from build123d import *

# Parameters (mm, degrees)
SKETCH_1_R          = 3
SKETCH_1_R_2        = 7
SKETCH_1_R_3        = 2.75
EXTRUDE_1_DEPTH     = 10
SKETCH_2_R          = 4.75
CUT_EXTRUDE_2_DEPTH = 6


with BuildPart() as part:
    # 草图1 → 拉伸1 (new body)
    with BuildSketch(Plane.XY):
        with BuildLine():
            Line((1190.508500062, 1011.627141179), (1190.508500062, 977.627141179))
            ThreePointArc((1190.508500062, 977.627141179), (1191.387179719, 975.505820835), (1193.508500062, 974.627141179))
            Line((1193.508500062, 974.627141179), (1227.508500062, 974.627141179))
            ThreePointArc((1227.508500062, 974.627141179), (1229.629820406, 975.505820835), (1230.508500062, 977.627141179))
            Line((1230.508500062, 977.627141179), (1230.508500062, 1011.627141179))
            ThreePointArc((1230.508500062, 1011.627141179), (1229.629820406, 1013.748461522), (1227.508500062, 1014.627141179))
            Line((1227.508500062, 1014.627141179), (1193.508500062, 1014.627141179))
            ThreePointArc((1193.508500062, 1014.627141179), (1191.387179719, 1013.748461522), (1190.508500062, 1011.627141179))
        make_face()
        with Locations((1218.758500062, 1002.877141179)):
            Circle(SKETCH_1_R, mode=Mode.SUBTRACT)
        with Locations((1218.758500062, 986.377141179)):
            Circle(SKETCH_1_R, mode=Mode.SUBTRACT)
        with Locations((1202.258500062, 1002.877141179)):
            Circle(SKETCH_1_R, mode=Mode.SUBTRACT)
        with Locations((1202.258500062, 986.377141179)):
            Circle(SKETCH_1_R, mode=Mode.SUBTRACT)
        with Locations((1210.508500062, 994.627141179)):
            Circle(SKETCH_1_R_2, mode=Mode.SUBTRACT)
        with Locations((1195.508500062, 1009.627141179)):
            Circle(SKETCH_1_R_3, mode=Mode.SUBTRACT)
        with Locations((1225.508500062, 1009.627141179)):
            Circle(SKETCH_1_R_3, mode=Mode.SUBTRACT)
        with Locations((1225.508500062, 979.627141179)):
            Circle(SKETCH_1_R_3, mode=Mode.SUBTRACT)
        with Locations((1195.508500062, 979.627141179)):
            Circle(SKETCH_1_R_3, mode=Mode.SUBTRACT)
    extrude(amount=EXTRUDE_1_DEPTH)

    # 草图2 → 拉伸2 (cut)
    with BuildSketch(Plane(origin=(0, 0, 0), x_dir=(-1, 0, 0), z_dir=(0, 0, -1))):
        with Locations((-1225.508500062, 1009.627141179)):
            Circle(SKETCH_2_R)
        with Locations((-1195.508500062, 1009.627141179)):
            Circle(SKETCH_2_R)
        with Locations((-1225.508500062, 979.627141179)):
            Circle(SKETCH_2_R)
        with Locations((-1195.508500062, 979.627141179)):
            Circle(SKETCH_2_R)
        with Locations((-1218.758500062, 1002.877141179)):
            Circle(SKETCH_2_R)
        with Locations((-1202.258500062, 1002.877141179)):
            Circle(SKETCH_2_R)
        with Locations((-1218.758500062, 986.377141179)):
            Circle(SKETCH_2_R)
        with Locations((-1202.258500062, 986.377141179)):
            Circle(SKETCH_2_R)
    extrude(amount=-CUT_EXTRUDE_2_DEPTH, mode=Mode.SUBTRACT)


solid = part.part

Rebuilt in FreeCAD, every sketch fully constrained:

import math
import FreeCAD as App
import Part
import Sketcher
Q = App.Units.Quantity

doc = App.newDocument("Part")
params = doc.addObject("Spreadsheet::Sheet", "Params")
for row, (alias, value) in enumerate([
    ("sketch1_diameter", "6 mm"),
    ("sketch1_diameter2", "14 mm"),
    ("sketch1_diameter3", "5.5 mm"),
    ("sketch1_width", "34 mm"),
    ("pad1_length", "10 mm"),
    ("sketch2_diameter", "9.5 mm"),
    ("pocket1_length", "6 mm"),
], start=1):
    params.set(f"A{row}", alias)
    params.set(f"B{row}", "=" + value)
    params.setAlias(f"B{row}", alias)

body = doc.addObject("PartDesign::Body", "Body")

# Sketch on XY plane
sketch1 = body.newObject("Sketcher::SketchObject", "Sketch")
sketch1.AttachmentSupport = (doc.getObject("XY_Plane"), [""])
sketch1.MapMode = "FlatFace"
sketch1.addGeometry([
    Part.LineSegment(App.Vector(1190.5085, 1011.627141, 0), App.Vector(1190.5085, 977.627141, 0)),  # 0
    Part.ArcOfCircle(Part.Circle(App.Vector(1193.5085, 977.627141, 0), App.Vector(0, 0, 1), 3), math.radians(180), math.radians(270)),  # 1
    Part.LineSegment(App.Vector(1193.5085, 974.627141, 0), App.Vector(1227.5085, 974.627141, 0)),  # 2
    Part.ArcOfCircle(Part.Circle(App.Vector(1227.5085, 977.627141, 0), App.Vector(0, 0, 1), 3), math.radians(-90), math.radians(0)),  # 3
    Part.LineSegment(App.Vector(1230.5085, 977.627141, 0), App.Vector(1230.5085, 1011.627141, 0)),  # 4
    Part.ArcOfCircle(Part.Circle(App.Vector(1227.5085, 1011.627141, 0), App.Vector(0, 0, 1), 3), math.radians(0), math.radians(90)),  # 5
    Part.LineSegment(App.Vector(1227.5085, 1014.627141, 0), App.Vector(1193.5085, 1014.627141, 0)),  # 6
    Part.ArcOfCircle(Part.Circle(App.Vector(1193.5085, 1011.627141, 0), App.Vector(0, 0, 1), 3), math.radians(90), math.radians(180)),  # 7
    Part.Circle(App.Vector(1195.5085, 979.627141, 0), App.Vector(0, 0, 1), 2.75),  # 8
    Part.Circle(App.Vector(1202.2585, 986.377141, 0), App.Vector(0, 0, 1), 3),  # 9
    Part.Circle(App.Vector(1225.5085, 979.627141, 0), App.Vector(0, 0, 1), 2.75),  # 10
    Part.Circle(App.Vector(1218.7585, 986.377141, 0), App.Vector(0, 0, 1), 3),  # 11
    Part.Circle(App.Vector(1202.2585, 1002.877141, 0), App.Vector(0, 0, 1), 3),  # 12
    Part.Circle(App.Vector(1195.5085, 1009.627141, 0), App.Vector(0, 0, 1), 2.75),  # 13
    Part.Circle(App.Vector(1210.5085, 994.627141, 0), App.Vector(0, 0, 1), 7),  # 14
    Part.Circle(App.Vector(1218.7585, 1002.877141, 0), App.Vector(0, 0, 1), 3),  # 15
    Part.Circle(App.Vector(1225.5085, 1009.627141, 0), App.Vector(0, 0, 1), 2.75),  # 16
], False)
sketch1.addConstraint([
    Sketcher.Constraint("Tangent", 0, 2, 1, 1),
    Sketcher.Constraint("Tangent", 1, 2, 2, 1),
    Sketcher.Constraint("Tangent", 2, 2, 3, 1),
    Sketcher.Constraint("Tangent", 3, 2, 4, 1),
    Sketcher.Constraint("Tangent", 4, 2, 5, 1),
    Sketcher.Constraint("Tangent", 5, 2, 6, 1),
    Sketcher.Constraint("Tangent", 6, 2, 7, 1),
    Sketcher.Constraint("Tangent", 7, 2, 0, 1),
    Sketcher.Constraint("Vertical", 0),
    Sketcher.Constraint("Horizontal", 2),
    Sketcher.Constraint("Vertical", 4),
    Sketcher.Constraint("Horizontal", 6),
    Sketcher.Constraint("Equal", 1, 3),
    Sketcher.Constraint("Equal", 3, 5),
    Sketcher.Constraint("Equal", 5, 7),
    Sketcher.Constraint("Equal", 7, 9),
    Sketcher.Constraint("Equal", 8, 10),
    Sketcher.Constraint("Equal", 9, 11),
    Sketcher.Constraint("Equal", 11, 12),
    Sketcher.Constraint("Equal", 10, 13),
    Sketcher.Constraint("Equal", 12, 15),
    Sketcher.Constraint("Equal", 13, 16),
    Sketcher.Constraint("Horizontal", 8, 3, 10, 3),
    Sketcher.Constraint("Horizontal", 9, 3, 11, 3),
    Sketcher.Constraint("Horizontal", 12, 3, 15, 3),
    Sketcher.Constraint("Horizontal", 13, 3, 16, 3),
    Sketcher.Constraint("Vertical", 9, 3, 12, 3),
    Sketcher.Constraint("Vertical", 8, 3, 13, 3),
    Sketcher.Constraint("Vertical", 11, 3, 15, 3),
    Sketcher.Constraint("Vertical", 10, 3, 16, 3),
    Sketcher.Constraint("Equal", 6, 0),
    Sketcher.Constraint("Diameter", 9, Q("6 mm")),
    Sketcher.Constraint("Diameter", 14, Q("14 mm")),
    Sketcher.Constraint("Diameter", 8, Q("5.5 mm")),
    Sketcher.Constraint("DistanceX", 2, 1, 2, 2, Q("34 mm")),
    Sketcher.Constraint("DistanceX", 1, 3, 8, 3, Q("2 mm")),
    Sketcher.Constraint("DistanceY", 1, 3, 8, 3, Q("2 mm")),
    Sketcher.Constraint("DistanceX", 10, 3, 3, 3, Q("2 mm")),
    Sketcher.Constraint("DistanceY", 13, 3, 7, 3, Q("2 mm")),
    Sketcher.Constraint("DistanceX", 8, 3, 14, 3, Q("15 mm")),
    Sketcher.Constraint("DistanceY", 8, 3, 14, 3, Q("15 mm")),
    Sketcher.Constraint("DistanceX", 9, 3, 11, 3, Q("16.5 mm")),
    Sketcher.Constraint("DistanceY", 9, 3, 12, 3, Q("16.5 mm")),
    Sketcher.Constraint("DistanceX", 8, 3, 9, 3, Q("6.75 mm")),
    Sketcher.Constraint("DistanceY", 8, 3, 9, 3, Q("6.75 mm")),
    Sketcher.Constraint("DistanceX", -1, 1, 1, 3, Q("1193.5085 mm")),
    Sketcher.Constraint("DistanceY", -1, 1, 1, 3, Q("977.627141 mm")),
])
sketch1.setExpression("Constraints[31]", "Params.sketch1_diameter")
sketch1.setExpression("Constraints[32]", "Params.sketch1_diameter2")
sketch1.setExpression("Constraints[33]", "Params.sketch1_diameter3")
sketch1.setExpression("Constraints[34]", "Params.sketch1_width")
pad1 = body.newObject("PartDesign::Pad", "Pad")
pad1.Profile = sketch1
pad1.setExpression("Length", "Params.pad1_length")

# Sketch on XY plane
sketch2 = body.newObject("Sketcher::SketchObject", "Sketch001")
sketch2.AttachmentSupport = (doc.getObject("XY_Plane"), [""])
sketch2.MapMode = "FlatFace"
sketch2.addGeometry([
    Part.Circle(App.Vector(1225.5085, 1009.627141, 0), App.Vector(0, 0, 1), 4.75),  # 0
    Part.Circle(App.Vector(1195.5085, 1009.627141, 0), App.Vector(0, 0, 1), 4.75),  # 1
    Part.Circle(App.Vector(1225.5085, 979.627141, 0), App.Vector(0, 0, 1), 4.75),  # 2
    Part.Circle(App.Vector(1195.5085, 979.627141, 0), App.Vector(0, 0, 1), 4.75),  # 3
    Part.Circle(App.Vector(1218.7585, 1002.877141, 0), App.Vector(0, 0, 1), 4.75),  # 4
    Part.Circle(App.Vector(1202.2585, 1002.877141, 0), App.Vector(0, 0, 1), 4.75),  # 5
    Part.Circle(App.Vector(1218.7585, 986.377141, 0), App.Vector(0, 0, 1), 4.75),  # 6
    Part.Circle(App.Vector(1202.2585, 986.377141, 0), App.Vector(0, 0, 1), 4.75),  # 7
], False)
sketch2.addConstraint([
    Sketcher.Constraint("Equal", 0, 1),
    Sketcher.Constraint("Equal", 1, 2),
    Sketcher.Constraint("Equal", 2, 3),
    Sketcher.Constraint("Equal", 3, 4),
    Sketcher.Constraint("Equal", 4, 5),
    Sketcher.Constraint("Equal", 5, 6),
    Sketcher.Constraint("Equal", 6, 7),
    Sketcher.Constraint("Horizontal", 0, 3, 1, 3),
    Sketcher.Constraint("Horizontal", 2, 3, 3, 3),
    Sketcher.Constraint("Horizontal", 4, 3, 5, 3),
    Sketcher.Constraint("Horizontal", 6, 3, 7, 3),
    Sketcher.Constraint("Vertical", 0, 3, 2, 3),
    Sketcher.Constraint("Vertical", 1, 3, 3, 3),
    Sketcher.Constraint("Vertical", 4, 3, 6, 3),
    Sketcher.Constraint("Vertical", 5, 3, 7, 3),
    Sketcher.Constraint("Diameter", 0, Q("9.5 mm")),
    Sketcher.Constraint("DistanceX", 1, 3, 0, 3, Q("30 mm")),
    Sketcher.Constraint("DistanceY", 2, 3, 0, 3, Q("30 mm")),
    Sketcher.Constraint("DistanceX", 5, 3, 4, 3, Q("16.5 mm")),
    Sketcher.Constraint("DistanceY", 6, 3, 4, 3, Q("16.5 mm")),
    Sketcher.Constraint("DistanceX", 4, 3, 0, 3, Q("6.75 mm")),
    Sketcher.Constraint("DistanceY", 4, 3, 0, 3, Q("6.75 mm")),
    Sketcher.Constraint("DistanceX", -1, 1, 0, 3, Q("1225.5085 mm")),
    Sketcher.Constraint("DistanceY", -1, 1, 0, 3, Q("1009.627141 mm")),
])
sketch2.setExpression("Constraints[15]", "Params.sketch2_diameter")
pocket1 = body.newObject("PartDesign::Pocket", "Pocket")
pocket1.Profile = sketch2
pocket1.setExpression("Length", "Params.pocket1_length")
pocket1.Reversed = True

doc.recompute()
